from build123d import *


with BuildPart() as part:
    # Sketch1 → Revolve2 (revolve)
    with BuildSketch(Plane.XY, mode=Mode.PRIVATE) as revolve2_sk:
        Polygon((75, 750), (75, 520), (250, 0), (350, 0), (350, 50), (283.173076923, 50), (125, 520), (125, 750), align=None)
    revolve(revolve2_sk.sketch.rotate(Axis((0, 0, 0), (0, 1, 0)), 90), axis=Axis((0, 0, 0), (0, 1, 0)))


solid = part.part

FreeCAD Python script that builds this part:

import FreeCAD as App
import Part
import Sketcher
from FreeCAD import Vector

doc = App.newDocument("Part")
body = doc.addObject("PartDesign::Body", "Body")

sketch1 = doc.addObject("Sketcher::SketchObject", "Sketch")
body.addObject(sketch1)
sketch1.AttachmentSupport = (doc.XY_Plane, [""])
sketch1.MapMode = "FlatFace"
sketch1.addGeometry([
    Part.LineSegment(Vector(75, 750, 0), Vector(75, 520, 0)),
    Part.LineSegment(Vector(75, 520, 0), Vector(250, 0, 0)),
    Part.LineSegment(Vector(250, 0, 0), Vector(350, 0, 0)),
    Part.LineSegment(Vector(350, 0, 0), Vector(350, 50, 0)),
    Part.LineSegment(Vector(350, 50, 0), Vector(283, 50, 0)),
    Part.LineSegment(Vector(283, 50, 0), Vector(125, 520, 0)),
    Part.LineSegment(Vector(125, 520, 0), Vector(125, 750, 0)),
    Part.LineSegment(Vector(125, 750, 0), Vector(75, 750, 0)),
], False)
sketch1.addConstraint([
    Sketcher.Constraint("Coincident", 0, 2, 1, 1),
    Sketcher.Constraint("Coincident", 1, 2, 2, 1),
    Sketcher.Constraint("Coincident", 2, 2, 3, 1),
    Sketcher.Constraint("Coincident", 3, 2, 4, 1),
    Sketcher.Constraint("Coincident", 4, 2, 5, 1),
    Sketcher.Constraint("Coincident", 5, 2, 6, 1),
    Sketcher.Constraint("Coincident", 6, 2, 7, 1),
    Sketcher.Constraint("Coincident", 7, 2, 0, 1),
    Sketcher.Constraint("Vertical", 0),
    Sketcher.Constraint("Horizontal", 2),
    Sketcher.Constraint("Vertical", 3),
    Sketcher.Constraint("Horizontal", 4),
    Sketcher.Constraint("Vertical", 6),
    Sketcher.Constraint("Horizontal", 7),
    Sketcher.Constraint("PointOnObject", 1, 2, -1),
    Sketcher.Constraint("Parallel", 1, 5),
    Sketcher.Constraint("Horizontal", 0, 2, 5, 2),
    Sketcher.Constraint("Equal", 7, 3),
    Sketcher.Constraint("DistanceX", 2, 1, 2, 2, 100.0),
    Sketcher.Constraint("DistanceX", 7, 2, 7, 1, 50.0),
    Sketcher.Constraint("DistanceY", 0, 2, 0, 1, 230.0),
    Sketcher.Constraint("DistanceX", -1, 1, 0, 2, 75.0),
    Sketcher.Constraint("DistanceY", -1, 1, 0, 2, 520.0),
    Sketcher.Constraint("DistanceX", -1, 1, 1, 2, 250.0),
])
revolution = doc.addObject("PartDesign::Revolution", "Revolution")
body.addObject(revolution)
revolution.Profile = sketch1
revolution.ReferenceAxis = (sketch1, ["V_Axis"])
revolution.Angle = 360

doc.recompute()
